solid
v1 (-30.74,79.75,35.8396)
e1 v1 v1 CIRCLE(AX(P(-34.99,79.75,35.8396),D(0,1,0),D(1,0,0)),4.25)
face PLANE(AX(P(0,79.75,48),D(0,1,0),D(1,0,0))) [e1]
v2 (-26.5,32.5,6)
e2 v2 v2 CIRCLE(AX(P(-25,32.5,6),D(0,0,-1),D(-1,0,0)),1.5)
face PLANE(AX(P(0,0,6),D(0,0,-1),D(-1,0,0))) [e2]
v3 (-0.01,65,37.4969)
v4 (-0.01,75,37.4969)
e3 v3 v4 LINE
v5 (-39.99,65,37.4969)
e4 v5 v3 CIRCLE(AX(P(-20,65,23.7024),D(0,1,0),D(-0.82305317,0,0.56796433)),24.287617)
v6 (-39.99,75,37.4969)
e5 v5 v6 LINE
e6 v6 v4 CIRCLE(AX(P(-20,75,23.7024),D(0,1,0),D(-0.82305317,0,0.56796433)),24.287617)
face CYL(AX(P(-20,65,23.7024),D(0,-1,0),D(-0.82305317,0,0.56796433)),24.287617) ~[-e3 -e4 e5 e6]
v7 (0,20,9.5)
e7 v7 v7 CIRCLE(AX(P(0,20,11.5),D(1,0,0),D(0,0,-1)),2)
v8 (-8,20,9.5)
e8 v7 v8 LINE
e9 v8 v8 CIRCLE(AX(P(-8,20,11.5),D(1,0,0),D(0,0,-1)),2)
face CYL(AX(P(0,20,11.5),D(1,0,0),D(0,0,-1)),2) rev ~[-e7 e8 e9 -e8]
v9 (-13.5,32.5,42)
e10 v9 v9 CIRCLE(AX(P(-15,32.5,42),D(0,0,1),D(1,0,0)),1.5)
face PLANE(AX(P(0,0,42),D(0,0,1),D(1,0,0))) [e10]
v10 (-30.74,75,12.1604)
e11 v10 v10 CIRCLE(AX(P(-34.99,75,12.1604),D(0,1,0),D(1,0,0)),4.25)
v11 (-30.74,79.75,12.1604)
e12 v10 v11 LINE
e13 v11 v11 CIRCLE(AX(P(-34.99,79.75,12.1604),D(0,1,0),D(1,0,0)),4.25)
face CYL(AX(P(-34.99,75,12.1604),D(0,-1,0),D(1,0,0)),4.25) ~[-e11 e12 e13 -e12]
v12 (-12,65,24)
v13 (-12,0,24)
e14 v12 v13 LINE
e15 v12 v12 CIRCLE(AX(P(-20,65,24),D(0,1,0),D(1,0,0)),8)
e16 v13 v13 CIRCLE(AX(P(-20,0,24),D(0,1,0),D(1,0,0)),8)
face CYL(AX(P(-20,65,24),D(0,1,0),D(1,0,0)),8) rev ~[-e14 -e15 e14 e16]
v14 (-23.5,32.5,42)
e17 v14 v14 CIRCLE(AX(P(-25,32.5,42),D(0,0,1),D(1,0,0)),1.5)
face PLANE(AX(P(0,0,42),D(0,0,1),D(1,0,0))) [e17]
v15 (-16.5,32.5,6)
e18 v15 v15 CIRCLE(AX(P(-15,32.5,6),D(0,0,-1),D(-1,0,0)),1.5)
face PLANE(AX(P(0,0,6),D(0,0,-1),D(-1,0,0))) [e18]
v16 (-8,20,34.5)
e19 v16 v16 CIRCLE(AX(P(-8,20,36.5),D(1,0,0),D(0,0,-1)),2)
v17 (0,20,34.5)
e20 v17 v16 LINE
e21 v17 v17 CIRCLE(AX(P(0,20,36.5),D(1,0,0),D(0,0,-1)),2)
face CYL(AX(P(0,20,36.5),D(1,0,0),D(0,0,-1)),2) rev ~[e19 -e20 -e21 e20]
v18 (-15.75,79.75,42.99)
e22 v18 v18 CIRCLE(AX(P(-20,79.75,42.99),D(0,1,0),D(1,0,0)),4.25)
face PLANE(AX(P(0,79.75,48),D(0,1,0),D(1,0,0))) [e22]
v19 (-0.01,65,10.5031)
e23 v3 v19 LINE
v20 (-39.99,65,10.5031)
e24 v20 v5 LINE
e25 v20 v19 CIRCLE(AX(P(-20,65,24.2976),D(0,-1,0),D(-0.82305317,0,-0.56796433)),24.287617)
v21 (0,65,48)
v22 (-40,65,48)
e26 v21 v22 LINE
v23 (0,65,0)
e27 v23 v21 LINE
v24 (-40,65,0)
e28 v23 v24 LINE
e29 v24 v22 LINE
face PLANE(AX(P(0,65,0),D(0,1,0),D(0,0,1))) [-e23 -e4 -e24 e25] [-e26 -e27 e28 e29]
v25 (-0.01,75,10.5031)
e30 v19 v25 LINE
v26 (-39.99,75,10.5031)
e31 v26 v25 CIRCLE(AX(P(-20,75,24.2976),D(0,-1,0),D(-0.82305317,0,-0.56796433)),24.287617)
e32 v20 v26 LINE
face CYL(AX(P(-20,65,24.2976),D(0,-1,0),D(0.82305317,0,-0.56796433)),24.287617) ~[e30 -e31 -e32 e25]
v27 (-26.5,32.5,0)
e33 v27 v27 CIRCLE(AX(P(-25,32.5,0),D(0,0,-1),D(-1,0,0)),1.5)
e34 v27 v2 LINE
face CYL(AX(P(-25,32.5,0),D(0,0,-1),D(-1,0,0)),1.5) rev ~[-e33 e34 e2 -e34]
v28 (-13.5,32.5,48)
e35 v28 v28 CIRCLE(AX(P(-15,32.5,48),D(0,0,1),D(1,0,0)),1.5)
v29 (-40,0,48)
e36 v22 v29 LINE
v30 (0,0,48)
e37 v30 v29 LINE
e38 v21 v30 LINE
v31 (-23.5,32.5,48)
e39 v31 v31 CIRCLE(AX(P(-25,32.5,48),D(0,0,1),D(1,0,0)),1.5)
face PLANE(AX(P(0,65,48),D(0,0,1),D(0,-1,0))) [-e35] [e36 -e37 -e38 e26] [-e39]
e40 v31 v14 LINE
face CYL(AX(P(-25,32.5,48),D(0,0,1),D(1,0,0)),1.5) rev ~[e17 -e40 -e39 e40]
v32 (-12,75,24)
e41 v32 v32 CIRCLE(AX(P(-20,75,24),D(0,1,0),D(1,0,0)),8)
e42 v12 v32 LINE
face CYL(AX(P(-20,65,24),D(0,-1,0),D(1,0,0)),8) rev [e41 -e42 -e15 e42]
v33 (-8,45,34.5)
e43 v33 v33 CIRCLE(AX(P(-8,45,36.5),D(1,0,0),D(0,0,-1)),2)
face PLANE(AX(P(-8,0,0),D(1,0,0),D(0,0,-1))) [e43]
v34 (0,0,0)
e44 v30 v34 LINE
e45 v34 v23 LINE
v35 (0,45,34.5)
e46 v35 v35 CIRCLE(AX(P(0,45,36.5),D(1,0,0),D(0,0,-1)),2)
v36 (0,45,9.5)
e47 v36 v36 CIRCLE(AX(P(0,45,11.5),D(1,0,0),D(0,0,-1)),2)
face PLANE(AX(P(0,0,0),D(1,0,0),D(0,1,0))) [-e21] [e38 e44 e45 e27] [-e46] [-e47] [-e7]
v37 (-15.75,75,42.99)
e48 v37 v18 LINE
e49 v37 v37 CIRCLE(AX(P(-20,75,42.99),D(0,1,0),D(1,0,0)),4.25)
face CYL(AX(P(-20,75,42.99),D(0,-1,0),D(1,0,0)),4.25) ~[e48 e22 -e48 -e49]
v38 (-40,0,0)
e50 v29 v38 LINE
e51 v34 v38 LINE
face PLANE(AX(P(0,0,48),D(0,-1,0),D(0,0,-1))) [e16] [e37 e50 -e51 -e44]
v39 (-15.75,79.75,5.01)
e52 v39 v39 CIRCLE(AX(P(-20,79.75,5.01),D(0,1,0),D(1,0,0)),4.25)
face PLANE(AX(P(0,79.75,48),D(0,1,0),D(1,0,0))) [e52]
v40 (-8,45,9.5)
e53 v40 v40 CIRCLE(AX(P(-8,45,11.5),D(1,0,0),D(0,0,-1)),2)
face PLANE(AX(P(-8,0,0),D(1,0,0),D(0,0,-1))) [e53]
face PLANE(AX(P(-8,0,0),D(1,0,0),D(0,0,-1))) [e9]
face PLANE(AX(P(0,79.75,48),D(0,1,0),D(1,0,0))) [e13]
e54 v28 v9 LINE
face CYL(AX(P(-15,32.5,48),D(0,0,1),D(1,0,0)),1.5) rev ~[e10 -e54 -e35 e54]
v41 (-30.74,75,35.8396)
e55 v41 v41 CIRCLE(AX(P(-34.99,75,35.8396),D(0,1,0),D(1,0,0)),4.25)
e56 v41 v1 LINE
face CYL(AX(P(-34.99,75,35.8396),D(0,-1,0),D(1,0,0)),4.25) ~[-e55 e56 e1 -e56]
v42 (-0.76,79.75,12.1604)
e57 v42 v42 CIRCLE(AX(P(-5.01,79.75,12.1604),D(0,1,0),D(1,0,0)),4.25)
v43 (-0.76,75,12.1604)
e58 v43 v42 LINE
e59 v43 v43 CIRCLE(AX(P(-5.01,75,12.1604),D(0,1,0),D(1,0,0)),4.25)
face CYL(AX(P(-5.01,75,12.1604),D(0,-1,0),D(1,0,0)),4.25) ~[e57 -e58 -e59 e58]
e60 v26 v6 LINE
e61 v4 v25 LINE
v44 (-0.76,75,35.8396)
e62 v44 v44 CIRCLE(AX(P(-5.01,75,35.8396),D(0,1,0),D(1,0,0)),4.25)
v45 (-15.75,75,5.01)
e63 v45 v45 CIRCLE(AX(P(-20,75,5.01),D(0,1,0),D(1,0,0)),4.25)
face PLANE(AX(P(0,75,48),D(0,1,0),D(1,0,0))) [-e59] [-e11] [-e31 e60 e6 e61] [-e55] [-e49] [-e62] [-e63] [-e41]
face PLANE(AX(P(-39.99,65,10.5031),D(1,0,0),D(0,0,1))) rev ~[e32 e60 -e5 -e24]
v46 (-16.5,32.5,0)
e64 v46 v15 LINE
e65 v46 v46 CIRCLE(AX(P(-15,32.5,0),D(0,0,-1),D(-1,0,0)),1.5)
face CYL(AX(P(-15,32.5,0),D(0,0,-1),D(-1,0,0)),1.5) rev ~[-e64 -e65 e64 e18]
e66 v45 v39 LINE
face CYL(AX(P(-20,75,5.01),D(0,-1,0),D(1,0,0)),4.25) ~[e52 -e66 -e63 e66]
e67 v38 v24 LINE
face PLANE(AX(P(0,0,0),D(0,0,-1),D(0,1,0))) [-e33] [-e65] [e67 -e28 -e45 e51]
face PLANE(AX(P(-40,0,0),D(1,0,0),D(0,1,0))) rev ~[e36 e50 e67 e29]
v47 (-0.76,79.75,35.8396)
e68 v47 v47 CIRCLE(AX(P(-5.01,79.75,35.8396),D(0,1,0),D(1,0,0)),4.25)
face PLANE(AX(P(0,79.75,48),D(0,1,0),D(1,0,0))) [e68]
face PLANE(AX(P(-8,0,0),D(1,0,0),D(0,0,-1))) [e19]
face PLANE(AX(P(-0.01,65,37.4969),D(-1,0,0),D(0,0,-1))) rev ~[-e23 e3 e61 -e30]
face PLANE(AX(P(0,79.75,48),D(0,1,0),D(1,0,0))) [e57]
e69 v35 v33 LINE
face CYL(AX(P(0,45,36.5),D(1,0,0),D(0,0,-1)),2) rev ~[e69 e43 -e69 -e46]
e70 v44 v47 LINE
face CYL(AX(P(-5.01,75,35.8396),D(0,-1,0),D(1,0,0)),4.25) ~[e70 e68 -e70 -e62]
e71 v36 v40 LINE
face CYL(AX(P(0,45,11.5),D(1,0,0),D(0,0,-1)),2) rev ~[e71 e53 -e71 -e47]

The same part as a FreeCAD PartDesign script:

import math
import FreeCAD as App
import Part
import Sketcher
from FreeCAD import Vector
Q = App.Units.Quantity

doc = App.newDocument("Part")
body = doc.addObject("PartDesign::Body", "Body")

sketch1 = body.newObject("Sketcher::SketchObject", "Sketch")
sketch1.AttachmentSupport = (doc.getObject("YZ_Plane"), [""])
sketch1.MapMode = "FlatFace"
sketch1.addGeometry([
    Part.LineSegment(Vector(0, 48, 0), Vector(0, 0, 0)),
    Part.LineSegment(Vector(0, 0, 0), Vector(65, 0, 0)),
    Part.LineSegment(Vector(65, 0, 0), Vector(65, 48, 0)),
    Part.LineSegment(Vector(65, 48, 0), Vector(0, 48, 0)),
], False)
sketch1.addConstraint([
    Sketcher.Constraint("Coincident", 0, 2, 1, 1),
    Sketcher.Constraint("Coincident", 1, 2, 2, 1),
    Sketcher.Constraint("Coincident", 2, 2, 3, 1),
    Sketcher.Constraint("Coincident", 3, 2, 0, 1),
    Sketcher.Constraint("Vertical", 0),
    Sketcher.Constraint("Horizontal", 1),
    Sketcher.Constraint("Vertical", 2),
    Sketcher.Constraint("Horizontal", 3),
    Sketcher.Constraint("Coincident", 0, 2, -1, 1),
    Sketcher.Constraint("DistanceX", 1, 1, 1, 2, Q("65 mm")),
    Sketcher.Constraint("DistanceY", 0, 2, 0, 1, Q("48 mm")),
])
pad1 = body.newObject("PartDesign::Pad", "Pad")
pad1.Profile = sketch1
pad1.Length = 40
pad1.Reversed = True

sketch2 = body.newObject("Sketcher::SketchObject", "Sketch001")
sketch2.AttachmentSupport = (doc.getObject("YZ_Plane"), [""])
sketch2.MapMode = "FlatFace"
sketch2.addGeometry([
    Part.Circle(Vector(45, 36.5, 0), Vector(0, 0, 1), 2),
    Part.Circle(Vector(45, 11.5, 0), Vector(0, 0, 1), 2),
    Part.Circle(Vector(20, 11.5, 0), Vector(0, 0, 1), 2),
    Part.Circle(Vector(20, 36.5, 0), Vector(0, 0, 1), 2),
], False)
sketch2.addConstraint([
    Sketcher.Constraint("Equal", 0, 1),
    Sketcher.Constraint("Equal", 1, 2),
    Sketcher.Constraint("Equal", 2, 3),
    Sketcher.Constraint("Horizontal", 1, 3, 2, 3),
    Sketcher.Constraint("Horizontal", 0, 3, 3, 3),
    Sketcher.Constraint("Vertical", 0, 3, 1, 3),
    Sketcher.Constraint("Vertical", 2, 3, 3, 3),
    Sketcher.Constraint("Diameter", 0, Q("4 mm")),
    Sketcher.Constraint("DistanceY", 1, 3, 0, 3, Q("25 mm")),
    Sketcher.Constraint("DistanceX", 2, 3, 1, 3, Q("25 mm")),
    Sketcher.Constraint("DistanceX", -1, 1, 0, 3, Q("45 mm")),
    Sketcher.Constraint("DistanceY", -1, 1, 0, 3, Q("36.5 mm")),
])
pocket1 = body.newObject("PartDesign::Pocket", "Pocket")
pocket1.Profile = sketch2
pocket1.Length = 8

sketch3 = body.newObject("Sketcher::SketchObject", "Sketch002")
sketch3.AttachmentSupport = (doc.getObject("XY_Plane"), [""])
sketch3.MapMode = "FlatFace"
sketch3.AttachmentOffset = App.Placement(Vector(0, 0, 48), App.Rotation())
sketch3.addGeometry([
    Part.Circle(Vector(-25, 32.5, 0), Vector(0, 0, 1), 1.5),
    Part.Circle(Vector(-15, 32.5, 0), Vector(0, 0, 1), 1.5),
], False)
sketch3.addConstraint([
    Sketcher.Constraint("Equal", 0, 1),
    Sketcher.Constraint("Horizontal", 0, 3, 1, 3),
    Sketcher.Constraint("Diameter", 0, Q("3 mm")),
    Sketcher.Constraint("DistanceX", 1, 3, -1, 1, Q("15 mm")),
    Sketcher.Constraint("DistanceX", 0, 3, 1, 3, Q("10 mm")),
    Sketcher.Constraint("DistanceY", -1, 1, 0, 3, Q("32.5 mm")),
])
pocket2 = body.newObject("PartDesign::Pocket", "Pocket001")
pocket2.Profile = sketch3
pocket2.Length = 6

sketch4 = body.newObject("Sketcher::SketchObject", "Sketch003")
sketch4.AttachmentSupport = (doc.getObject("XY_Plane"), [""])
sketch4.MapMode = "FlatFace"
sketch4.addGeometry([
    Part.Circle(Vector(-25, 32.5, 0), Vector(0, 0, 1), 1.5),
    Part.Circle(Vector(-15, 32.5, 0), Vector(0, 0, 1), 1.5),
], False)
sketch4.addConstraint([
    Sketcher.Constraint("Equal", 0, 1),
    Sketcher.Constraint("Horizontal", 0, 3, 1, 3),
    Sketcher.Constraint("Diameter", 0, Q("3 mm")),
    Sketcher.Constraint("DistanceX", 0, 3, -1, 1, Q("25 mm")),
    Sketcher.Constraint("DistanceX", 1, 3, -1, 1, Q("15 mm")),
    Sketcher.Constraint("DistanceY", -1, 1, 0, 3, Q("32.5 mm")),
])
pocket3 = body.newObject("PartDesign::Pocket", "Pocket002")
pocket3.Profile = sketch4
pocket3.Length = 6
pocket3.Reversed = True

sketch5 = body.newObject("Sketcher::SketchObject", "Sketch004")
sketch5.AttachmentSupport = (doc.getObject("XZ_Plane"), [""])
sketch5.MapMode = "FlatFace"
sketch5.AttachmentOffset = App.Placement(Vector(0, 0, -65), App.Rotation())
sketch5.addGeometry([
    Part.ArcOfCircle(Part.Circle(Vector(-20, 24, 0), Vector(0, 0, 1), 24), math.radians(-145), math.radians(-35)),
    Part.LineSegment(Vector(-40, 11, 0), Vector(-40, 37, 0)),
    Part.ArcOfCircle(Part.Circle(Vector(-20, 24, 0), Vector(0, 0, 1), 24), math.radians(35), math.radians(145)),
    Part.LineSegment(Vector(0, 37, 0), Vector(0, 11, 0)),
    Part.Circle(Vector(-20, 24, 0), Vector(0, 0, 1), 8),
], False)
sketch5.addConstraint([
    Sketcher.Constraint("Coincident", 0, 1, 1, 1),
    Sketcher.Constraint("Coincident", 1, 2, 2, 2),
    Sketcher.Constraint("Coincident", 2, 1, 3, 1),
    Sketcher.Constraint("Coincident", 3, 2, 0, 2),
    Sketcher.Constraint("Vertical", 1),
    Sketcher.Constraint("Vertical", 3),
    Sketcher.Constraint("Equal", 0, 2),
    Sketcher.Constraint("Horizontal", 1, 2, 2, 1),
    Sketcher.Constraint("Horizontal", 0, 1, 3, 2),
    Sketcher.Constraint("Vertical", 2, 3, 4, 3),
    Sketcher.Constraint("Diameter", 4, Q("16 mm")),
    Sketcher.Constraint("DistanceX", 2, 1, -1, 1, Q("0.01 mm")),
    Sketcher.Constraint("DistanceX", 0, 3, -1, 1, Q("20 mm")),
    Sketcher.Constraint("DistanceY", -1, 1, 4, 3, Q("24 mm")),
    Sketcher.Constraint("Radius", 0, Q("24.2876 mm")),
    Sketcher.Constraint("DistanceY", 1, 1, 1, 2, Q("26.9938 mm")),
    Sketcher.Constraint("DistanceY", -1, 1, 0, 1, Q("10.503 mm")),
])
pad2 = body.newObject("PartDesign::Pad", "Pad001")
pad2.Profile = sketch5
pad2.Length = 10
pad2.Reversed = True

sketch6 = body.newObject("Sketcher::SketchObject", "Sketch005")
sketch6.AttachmentSupport = (doc.getObject("XZ_Plane"), [""])
sketch6.MapMode = "FlatFace"
sketch6.AttachmentOffset = App.Placement(Vector(0, 0, -75), App.Rotation())
sketch6.addGeometry([
    Part.Circle(Vector(-35, 12.2, 0), Vector(0, 0, 1), 4.2),
    Part.Circle(Vector(-20, 5, 0), Vector(0, 0, 1), 4.2),
    Part.Circle(Vector(-5, 12.2, 0), Vector(0, 0, 1), 4.2),
    Part.Circle(Vector(-5, 35.8, 0), Vector(0, 0, 1), 4.2),
    Part.Circle(Vector(-20, 43, 0), Vector(0, 0, 1), 4.2),
    Part.Circle(Vector(-35, 35.8, 0), Vector(0, 0, 1), 4.2),
], False)
sketch6.addConstraint([
    Sketcher.Constraint("Equal", 0, 1),
    Sketcher.Constraint("Equal", 1, 2),
    Sketcher.Constraint("Equal", 2, 3),
    Sketcher.Constraint("Equal", 3, 4),
    Sketcher.Constraint("Equal", 4, 5),
    Sketcher.Constraint("Horizontal", 0, 3, 2, 3),
    Sketcher.Constraint("Horizontal", 3, 3, 5, 3),
    Sketcher.Constraint("Vertical", 2, 3, 3, 3),
    Sketcher.Constraint("Vertical", 1, 3, 4, 3),
    Sketcher.Constraint("Vertical", 0, 3, 5, 3),
    Sketcher.Constraint("Diameter", 0, Q("8.5 mm")),
    Sketcher.Constraint("DistanceX", 1, 3, -1, 1, Q("20 mm")),
    Sketcher.Constraint("DistanceX", 0, 3, -1, 1, Q("34.99 mm")),
    Sketcher.Constraint("DistanceY", -1, 1, 1, 3, Q("5.01 mm")),
    Sketcher.Constraint("DistanceX", 2, 3, -1, 1, Q("5.01 mm")),
    Sketcher.Constraint("DistanceY", -1, 1, 4, 3, Q("42.99 mm")),
    Sketcher.Constraint("DistanceY", -1, 1, 0, 3, Q("12.1604 mm")),
    Sketcher.Constraint("DistanceY", -1, 1, 3, 3, Q("35.8396 mm")),
])
pad3 = body.newObject("PartDesign::Pad", "Pad002")
pad3.Profile = sketch6
pad3.Length = 4.75
pad3.Reversed = True

sketch7 = body.newObject("Sketcher::SketchObject", "Sketch006")
sketch7.AttachmentSupport = (doc.getObject("XZ_Plane"), [""])
sketch7.MapMode = "FlatFace"
sketch7.AttachmentOffset = App.Placement(Vector(0, 0, -65), App.Rotation())
sketch7.addGeometry(Part.Circle(Vector(-20, 24, 0), Vector(0, 0, 1), 8), False)
sketch7.addConstraint([
    Sketcher.Constraint("Diameter", 0, Q("16 mm")),
    Sketcher.Constraint("DistanceX", 0, 3, -1, 1, Q("20 mm")),
    Sketcher.Constraint("DistanceY", -1, 1, 0, 3, Q("24 mm")),
])
pocket4 = body.newObject("PartDesign::Pocket", "Pocket003")
pocket4.Profile = sketch7
pocket4.Type = "UpToFirst"
pocket4.Reversed = True

doc.recompute()
